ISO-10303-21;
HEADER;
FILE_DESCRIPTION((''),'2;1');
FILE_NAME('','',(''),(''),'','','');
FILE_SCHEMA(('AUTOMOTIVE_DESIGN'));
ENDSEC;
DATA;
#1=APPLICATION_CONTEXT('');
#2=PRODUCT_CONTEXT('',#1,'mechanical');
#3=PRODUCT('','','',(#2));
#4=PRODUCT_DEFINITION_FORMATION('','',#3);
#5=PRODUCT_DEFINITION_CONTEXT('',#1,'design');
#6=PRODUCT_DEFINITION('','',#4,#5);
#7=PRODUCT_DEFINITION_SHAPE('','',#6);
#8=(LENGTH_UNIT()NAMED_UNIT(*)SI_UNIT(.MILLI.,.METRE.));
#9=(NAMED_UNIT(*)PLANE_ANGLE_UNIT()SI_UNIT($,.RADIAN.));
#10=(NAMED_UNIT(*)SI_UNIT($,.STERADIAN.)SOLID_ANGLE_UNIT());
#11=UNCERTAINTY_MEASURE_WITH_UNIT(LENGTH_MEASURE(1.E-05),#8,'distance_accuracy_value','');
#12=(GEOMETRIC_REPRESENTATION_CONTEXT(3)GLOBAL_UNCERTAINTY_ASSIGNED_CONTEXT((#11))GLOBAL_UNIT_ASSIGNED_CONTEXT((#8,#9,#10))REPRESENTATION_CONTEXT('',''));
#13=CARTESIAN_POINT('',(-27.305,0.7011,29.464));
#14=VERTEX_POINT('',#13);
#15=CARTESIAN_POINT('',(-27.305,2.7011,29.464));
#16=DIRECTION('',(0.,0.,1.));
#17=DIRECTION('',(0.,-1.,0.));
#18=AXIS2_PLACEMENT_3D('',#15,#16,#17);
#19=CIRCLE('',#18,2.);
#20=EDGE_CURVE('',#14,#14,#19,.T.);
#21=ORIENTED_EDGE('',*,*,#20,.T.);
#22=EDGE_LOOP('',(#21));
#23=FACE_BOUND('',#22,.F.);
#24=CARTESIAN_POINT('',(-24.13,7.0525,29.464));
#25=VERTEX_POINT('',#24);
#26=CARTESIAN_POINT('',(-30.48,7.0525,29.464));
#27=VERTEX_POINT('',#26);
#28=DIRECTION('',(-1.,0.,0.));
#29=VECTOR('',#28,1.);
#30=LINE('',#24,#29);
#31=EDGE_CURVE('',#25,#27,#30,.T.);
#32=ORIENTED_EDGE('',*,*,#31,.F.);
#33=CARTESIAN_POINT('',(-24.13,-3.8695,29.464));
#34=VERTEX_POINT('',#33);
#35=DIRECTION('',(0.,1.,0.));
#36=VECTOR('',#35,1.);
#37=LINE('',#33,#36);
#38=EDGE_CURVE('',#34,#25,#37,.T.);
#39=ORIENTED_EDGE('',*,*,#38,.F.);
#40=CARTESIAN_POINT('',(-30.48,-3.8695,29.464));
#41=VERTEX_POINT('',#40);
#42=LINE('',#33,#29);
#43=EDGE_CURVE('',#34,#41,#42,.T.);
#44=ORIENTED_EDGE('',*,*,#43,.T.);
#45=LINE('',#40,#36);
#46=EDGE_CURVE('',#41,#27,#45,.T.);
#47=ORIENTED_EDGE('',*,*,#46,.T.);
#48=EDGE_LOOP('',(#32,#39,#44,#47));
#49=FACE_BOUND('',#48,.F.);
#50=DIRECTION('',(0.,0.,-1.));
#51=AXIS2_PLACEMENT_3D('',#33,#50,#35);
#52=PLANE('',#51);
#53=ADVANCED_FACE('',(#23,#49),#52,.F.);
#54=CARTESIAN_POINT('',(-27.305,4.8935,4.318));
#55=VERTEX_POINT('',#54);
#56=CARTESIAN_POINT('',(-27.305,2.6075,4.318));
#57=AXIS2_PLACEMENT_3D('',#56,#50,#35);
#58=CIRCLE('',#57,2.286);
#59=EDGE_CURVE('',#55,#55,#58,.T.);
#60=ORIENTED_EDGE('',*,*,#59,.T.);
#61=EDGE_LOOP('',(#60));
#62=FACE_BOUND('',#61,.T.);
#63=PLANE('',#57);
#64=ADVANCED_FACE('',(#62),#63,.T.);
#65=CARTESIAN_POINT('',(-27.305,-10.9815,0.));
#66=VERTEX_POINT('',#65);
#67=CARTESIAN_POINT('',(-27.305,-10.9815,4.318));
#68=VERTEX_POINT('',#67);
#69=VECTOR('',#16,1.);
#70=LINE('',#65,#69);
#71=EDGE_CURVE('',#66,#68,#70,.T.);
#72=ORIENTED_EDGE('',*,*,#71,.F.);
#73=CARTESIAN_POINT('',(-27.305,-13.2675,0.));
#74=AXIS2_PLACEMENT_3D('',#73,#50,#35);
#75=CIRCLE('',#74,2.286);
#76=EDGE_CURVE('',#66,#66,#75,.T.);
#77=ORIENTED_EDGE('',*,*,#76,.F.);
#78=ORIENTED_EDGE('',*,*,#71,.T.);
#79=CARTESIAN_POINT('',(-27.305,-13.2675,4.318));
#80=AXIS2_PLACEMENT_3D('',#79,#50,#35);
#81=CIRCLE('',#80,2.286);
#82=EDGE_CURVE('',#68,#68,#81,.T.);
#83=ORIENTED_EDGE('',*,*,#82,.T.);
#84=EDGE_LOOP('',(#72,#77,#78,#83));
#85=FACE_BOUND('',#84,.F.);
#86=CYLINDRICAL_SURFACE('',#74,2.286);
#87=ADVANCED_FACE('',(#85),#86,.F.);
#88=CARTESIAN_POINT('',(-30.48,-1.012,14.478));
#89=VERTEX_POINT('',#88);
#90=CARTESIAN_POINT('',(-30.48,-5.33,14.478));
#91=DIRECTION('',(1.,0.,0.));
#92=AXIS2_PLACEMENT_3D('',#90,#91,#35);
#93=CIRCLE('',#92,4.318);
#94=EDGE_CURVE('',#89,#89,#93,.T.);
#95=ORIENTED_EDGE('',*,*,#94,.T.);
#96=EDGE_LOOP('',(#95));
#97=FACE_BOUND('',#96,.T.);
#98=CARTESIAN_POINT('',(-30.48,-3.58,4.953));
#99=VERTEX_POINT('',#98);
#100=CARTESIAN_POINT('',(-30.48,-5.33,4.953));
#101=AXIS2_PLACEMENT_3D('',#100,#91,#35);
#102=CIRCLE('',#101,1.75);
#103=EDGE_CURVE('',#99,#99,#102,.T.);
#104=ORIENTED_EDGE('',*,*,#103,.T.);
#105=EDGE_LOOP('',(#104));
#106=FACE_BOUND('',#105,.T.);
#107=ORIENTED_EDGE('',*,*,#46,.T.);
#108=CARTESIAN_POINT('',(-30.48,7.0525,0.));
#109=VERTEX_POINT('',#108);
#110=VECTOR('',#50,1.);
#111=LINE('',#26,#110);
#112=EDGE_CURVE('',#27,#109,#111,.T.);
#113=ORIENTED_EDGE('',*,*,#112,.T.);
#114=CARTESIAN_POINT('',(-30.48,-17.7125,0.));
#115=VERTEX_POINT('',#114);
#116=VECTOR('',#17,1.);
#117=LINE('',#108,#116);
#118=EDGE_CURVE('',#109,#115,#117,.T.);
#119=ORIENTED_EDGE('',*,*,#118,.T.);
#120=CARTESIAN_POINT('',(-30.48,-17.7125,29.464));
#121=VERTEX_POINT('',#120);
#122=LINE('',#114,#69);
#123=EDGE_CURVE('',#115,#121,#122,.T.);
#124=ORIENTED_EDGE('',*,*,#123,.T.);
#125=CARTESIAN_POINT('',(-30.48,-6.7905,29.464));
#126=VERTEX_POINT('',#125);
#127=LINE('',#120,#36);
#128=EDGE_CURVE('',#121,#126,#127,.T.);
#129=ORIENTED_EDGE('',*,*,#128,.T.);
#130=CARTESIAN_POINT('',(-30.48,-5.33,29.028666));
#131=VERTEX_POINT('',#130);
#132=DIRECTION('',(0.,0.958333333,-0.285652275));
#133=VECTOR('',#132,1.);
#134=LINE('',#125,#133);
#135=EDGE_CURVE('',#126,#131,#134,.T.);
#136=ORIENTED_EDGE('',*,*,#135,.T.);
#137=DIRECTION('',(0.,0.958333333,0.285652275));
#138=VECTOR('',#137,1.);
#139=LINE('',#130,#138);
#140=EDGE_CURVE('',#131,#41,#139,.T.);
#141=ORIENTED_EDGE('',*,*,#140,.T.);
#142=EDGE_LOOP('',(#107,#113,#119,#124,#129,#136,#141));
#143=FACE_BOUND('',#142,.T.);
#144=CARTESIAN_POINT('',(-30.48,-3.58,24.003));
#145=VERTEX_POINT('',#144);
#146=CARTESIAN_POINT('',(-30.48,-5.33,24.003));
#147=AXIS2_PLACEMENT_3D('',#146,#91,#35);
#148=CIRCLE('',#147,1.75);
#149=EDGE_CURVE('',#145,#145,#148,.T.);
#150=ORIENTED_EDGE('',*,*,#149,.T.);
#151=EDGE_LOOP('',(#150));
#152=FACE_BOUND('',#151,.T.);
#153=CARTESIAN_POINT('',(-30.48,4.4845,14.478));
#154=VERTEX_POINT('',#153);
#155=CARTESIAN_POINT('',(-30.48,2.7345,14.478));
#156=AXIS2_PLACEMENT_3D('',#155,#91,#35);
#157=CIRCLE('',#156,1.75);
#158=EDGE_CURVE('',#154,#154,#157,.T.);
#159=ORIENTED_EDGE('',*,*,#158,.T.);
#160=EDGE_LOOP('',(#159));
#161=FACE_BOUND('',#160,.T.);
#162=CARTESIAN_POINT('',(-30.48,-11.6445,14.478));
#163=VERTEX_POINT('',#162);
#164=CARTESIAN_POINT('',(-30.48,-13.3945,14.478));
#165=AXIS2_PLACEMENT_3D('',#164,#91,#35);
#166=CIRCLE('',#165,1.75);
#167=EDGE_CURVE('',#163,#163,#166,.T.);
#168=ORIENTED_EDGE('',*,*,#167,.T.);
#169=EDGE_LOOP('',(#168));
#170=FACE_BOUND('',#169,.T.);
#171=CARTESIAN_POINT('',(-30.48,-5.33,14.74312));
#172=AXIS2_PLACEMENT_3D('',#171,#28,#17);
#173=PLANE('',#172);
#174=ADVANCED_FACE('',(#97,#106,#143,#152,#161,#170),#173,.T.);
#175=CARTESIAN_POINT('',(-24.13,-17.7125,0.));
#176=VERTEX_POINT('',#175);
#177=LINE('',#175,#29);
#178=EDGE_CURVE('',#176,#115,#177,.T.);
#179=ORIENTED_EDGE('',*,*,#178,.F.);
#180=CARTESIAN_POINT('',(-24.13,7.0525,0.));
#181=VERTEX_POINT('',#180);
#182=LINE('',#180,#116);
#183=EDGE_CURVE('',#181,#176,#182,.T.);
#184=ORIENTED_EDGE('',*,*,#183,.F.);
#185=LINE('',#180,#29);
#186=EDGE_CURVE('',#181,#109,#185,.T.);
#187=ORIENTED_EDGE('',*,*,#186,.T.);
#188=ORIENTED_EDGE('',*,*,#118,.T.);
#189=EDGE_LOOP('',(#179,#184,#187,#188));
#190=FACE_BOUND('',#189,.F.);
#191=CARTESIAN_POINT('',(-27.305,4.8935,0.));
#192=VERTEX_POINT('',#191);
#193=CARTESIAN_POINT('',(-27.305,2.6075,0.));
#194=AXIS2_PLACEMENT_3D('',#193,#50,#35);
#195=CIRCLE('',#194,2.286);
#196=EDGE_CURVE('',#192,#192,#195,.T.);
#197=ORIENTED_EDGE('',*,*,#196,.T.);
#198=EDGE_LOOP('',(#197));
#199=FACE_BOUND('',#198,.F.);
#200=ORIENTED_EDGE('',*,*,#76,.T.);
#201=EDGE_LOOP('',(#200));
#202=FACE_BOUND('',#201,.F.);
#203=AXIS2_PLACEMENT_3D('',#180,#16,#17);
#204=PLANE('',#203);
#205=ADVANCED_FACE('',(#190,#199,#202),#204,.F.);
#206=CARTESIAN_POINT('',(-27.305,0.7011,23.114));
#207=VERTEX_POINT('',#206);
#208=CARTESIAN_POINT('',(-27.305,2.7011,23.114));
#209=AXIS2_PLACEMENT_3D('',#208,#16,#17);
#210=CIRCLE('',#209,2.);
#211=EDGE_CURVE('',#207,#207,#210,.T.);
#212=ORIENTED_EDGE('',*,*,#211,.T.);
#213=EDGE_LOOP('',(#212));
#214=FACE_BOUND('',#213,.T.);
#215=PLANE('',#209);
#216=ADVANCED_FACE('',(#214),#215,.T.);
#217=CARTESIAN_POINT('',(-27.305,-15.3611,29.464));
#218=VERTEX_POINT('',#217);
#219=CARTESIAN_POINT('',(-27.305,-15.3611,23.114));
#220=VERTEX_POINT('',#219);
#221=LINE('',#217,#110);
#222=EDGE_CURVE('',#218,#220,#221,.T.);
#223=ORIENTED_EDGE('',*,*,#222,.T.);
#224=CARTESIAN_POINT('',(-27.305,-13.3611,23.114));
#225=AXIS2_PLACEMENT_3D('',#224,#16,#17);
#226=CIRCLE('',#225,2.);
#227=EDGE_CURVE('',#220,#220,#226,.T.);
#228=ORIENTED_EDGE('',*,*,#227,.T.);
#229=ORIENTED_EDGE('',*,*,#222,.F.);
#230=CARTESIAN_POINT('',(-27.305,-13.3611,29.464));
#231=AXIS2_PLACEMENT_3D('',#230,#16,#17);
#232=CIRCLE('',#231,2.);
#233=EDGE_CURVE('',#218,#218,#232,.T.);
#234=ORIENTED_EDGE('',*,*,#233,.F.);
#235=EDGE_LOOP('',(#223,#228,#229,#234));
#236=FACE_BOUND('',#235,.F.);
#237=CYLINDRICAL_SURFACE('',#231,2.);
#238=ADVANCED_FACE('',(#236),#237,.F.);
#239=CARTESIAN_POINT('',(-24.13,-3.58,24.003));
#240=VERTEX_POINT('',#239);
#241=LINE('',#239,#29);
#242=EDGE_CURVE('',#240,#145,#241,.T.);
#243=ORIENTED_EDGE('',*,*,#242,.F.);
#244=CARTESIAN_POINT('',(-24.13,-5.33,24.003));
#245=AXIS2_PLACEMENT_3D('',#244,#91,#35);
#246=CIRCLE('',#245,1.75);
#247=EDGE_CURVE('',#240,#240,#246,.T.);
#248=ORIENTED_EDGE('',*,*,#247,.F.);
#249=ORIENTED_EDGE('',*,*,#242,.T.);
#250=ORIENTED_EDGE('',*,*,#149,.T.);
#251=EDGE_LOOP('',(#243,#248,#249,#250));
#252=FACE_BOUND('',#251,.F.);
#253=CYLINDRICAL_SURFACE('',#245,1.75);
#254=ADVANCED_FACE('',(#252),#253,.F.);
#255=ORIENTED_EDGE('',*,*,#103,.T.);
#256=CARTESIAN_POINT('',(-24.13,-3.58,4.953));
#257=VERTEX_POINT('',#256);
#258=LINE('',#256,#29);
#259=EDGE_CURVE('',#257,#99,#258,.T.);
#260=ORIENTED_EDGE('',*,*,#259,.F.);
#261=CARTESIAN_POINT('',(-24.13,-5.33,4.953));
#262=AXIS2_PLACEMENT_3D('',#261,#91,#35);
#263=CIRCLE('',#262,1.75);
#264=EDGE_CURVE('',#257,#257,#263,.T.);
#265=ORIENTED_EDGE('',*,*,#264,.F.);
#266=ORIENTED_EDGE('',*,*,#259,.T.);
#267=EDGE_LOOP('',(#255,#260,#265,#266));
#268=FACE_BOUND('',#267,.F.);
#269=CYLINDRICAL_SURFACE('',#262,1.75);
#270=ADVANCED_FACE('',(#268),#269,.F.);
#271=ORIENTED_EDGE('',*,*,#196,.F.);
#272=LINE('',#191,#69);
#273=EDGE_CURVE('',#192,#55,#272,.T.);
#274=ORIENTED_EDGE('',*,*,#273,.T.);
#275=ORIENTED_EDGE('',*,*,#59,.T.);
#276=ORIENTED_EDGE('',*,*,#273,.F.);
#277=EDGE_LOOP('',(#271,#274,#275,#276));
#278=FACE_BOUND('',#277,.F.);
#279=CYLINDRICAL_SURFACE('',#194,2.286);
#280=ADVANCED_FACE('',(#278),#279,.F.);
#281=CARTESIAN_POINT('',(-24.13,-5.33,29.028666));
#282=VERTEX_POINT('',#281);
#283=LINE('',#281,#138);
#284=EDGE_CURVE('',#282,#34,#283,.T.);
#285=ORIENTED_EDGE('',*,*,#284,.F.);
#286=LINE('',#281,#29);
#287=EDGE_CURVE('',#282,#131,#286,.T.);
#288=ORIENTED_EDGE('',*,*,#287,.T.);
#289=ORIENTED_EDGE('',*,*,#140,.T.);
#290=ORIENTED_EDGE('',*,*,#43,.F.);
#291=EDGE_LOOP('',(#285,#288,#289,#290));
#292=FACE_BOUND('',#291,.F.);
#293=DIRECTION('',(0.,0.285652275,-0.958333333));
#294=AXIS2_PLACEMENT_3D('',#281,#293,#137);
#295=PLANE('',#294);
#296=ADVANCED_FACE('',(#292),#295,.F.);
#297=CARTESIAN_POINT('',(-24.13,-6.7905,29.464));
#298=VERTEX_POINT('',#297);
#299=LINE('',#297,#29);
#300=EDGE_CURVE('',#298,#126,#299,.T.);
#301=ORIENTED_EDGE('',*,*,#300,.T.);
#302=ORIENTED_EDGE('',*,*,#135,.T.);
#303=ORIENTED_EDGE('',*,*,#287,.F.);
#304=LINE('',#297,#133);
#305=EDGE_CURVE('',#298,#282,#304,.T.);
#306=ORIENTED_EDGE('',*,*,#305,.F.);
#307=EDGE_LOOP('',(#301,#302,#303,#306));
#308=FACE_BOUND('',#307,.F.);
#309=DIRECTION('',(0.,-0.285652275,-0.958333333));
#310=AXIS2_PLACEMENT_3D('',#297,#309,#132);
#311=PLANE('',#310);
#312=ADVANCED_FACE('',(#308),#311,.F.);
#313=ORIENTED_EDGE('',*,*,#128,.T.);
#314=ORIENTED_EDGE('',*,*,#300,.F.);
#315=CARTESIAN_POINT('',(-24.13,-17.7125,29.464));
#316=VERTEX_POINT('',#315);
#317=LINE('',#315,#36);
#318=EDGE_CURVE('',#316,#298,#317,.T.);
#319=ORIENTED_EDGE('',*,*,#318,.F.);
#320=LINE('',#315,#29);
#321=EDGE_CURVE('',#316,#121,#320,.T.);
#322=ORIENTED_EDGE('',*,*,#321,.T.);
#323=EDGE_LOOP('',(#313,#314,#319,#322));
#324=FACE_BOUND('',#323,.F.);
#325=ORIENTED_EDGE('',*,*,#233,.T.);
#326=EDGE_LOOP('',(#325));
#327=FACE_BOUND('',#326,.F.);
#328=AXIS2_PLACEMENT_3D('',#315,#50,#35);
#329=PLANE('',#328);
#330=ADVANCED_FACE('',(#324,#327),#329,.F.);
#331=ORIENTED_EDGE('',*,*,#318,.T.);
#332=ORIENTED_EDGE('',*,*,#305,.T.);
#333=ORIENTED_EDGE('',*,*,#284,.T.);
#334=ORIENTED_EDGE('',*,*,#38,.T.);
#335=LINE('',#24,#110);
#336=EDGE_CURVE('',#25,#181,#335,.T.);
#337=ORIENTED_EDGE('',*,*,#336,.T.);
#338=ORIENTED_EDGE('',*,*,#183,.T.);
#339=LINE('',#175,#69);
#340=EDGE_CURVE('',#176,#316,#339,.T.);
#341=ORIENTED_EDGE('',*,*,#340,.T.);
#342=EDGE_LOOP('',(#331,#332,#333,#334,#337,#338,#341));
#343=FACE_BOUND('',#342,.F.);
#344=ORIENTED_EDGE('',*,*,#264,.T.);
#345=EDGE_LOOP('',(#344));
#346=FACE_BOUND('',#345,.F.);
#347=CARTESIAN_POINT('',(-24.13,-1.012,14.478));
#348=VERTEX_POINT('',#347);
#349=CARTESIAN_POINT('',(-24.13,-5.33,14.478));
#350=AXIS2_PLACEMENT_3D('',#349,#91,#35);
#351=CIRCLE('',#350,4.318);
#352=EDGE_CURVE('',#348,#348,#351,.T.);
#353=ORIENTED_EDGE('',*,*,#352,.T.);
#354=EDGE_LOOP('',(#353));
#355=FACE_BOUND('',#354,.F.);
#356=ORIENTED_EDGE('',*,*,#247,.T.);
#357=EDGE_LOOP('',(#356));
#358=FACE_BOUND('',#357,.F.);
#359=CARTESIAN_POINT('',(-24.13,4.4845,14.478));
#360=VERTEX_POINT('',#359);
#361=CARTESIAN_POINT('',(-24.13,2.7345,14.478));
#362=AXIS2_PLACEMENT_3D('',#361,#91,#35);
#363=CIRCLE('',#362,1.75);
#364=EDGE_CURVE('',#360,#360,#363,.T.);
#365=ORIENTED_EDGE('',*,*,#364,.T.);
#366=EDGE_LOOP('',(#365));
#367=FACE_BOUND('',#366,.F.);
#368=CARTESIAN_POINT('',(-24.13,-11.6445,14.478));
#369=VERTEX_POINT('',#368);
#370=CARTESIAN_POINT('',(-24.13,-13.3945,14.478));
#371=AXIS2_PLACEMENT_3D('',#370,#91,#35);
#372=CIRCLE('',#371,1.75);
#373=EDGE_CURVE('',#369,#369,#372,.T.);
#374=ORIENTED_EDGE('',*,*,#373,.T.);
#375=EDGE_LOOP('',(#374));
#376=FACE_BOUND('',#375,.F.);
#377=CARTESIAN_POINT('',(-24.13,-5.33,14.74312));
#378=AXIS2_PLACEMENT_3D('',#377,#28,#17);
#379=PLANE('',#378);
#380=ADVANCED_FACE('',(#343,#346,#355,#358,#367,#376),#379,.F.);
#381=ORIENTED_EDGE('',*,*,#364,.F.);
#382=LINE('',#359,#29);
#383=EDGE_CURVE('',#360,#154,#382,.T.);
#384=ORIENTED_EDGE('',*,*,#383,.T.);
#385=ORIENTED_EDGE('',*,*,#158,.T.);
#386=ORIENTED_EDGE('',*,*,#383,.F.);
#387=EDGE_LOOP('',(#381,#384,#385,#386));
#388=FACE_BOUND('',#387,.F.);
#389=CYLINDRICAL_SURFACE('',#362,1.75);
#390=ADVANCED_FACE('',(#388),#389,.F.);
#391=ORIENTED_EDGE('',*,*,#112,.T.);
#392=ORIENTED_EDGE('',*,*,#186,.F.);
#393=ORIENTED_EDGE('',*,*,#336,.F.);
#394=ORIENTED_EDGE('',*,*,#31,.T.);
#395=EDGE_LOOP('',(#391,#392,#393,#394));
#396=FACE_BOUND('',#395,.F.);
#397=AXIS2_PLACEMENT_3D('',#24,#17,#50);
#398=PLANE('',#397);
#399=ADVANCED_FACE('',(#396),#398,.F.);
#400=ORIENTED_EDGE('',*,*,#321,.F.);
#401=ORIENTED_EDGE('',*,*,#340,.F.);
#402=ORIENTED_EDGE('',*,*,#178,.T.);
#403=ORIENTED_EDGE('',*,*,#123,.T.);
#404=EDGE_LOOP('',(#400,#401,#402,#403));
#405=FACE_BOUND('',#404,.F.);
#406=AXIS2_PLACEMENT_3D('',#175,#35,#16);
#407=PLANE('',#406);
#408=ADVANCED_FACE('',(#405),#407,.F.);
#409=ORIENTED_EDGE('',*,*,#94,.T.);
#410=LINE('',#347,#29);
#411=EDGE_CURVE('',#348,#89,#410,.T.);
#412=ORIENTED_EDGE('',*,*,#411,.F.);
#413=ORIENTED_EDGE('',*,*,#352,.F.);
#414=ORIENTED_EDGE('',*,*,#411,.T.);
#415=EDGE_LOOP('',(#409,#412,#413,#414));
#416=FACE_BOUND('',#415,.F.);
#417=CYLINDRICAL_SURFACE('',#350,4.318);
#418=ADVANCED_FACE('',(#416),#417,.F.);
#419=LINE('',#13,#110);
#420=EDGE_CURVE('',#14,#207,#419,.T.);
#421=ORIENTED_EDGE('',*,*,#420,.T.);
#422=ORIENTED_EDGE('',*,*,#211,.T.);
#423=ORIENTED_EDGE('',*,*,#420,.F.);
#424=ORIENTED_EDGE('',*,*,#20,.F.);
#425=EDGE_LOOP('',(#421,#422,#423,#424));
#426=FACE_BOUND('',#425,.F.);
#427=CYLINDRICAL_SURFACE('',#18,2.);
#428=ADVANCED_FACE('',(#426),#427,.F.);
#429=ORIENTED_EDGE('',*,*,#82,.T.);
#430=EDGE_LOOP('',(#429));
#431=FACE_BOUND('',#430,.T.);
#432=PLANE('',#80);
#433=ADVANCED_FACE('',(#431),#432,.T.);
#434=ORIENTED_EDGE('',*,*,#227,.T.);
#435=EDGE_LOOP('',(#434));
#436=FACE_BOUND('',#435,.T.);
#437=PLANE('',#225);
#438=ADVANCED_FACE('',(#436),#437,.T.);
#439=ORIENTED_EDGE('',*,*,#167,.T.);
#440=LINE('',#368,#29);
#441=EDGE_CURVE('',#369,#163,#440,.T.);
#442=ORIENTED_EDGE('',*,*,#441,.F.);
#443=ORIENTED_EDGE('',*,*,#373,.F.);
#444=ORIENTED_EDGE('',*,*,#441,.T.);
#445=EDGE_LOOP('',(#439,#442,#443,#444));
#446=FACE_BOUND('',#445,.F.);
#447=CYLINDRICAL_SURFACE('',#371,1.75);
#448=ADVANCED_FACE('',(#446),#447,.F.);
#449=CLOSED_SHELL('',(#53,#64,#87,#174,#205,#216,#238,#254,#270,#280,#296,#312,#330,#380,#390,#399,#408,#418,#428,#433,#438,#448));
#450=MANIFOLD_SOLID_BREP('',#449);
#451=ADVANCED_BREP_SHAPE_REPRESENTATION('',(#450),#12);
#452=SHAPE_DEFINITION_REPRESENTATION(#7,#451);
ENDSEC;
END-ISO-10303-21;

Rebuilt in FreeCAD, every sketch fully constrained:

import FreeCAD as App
import Part
import Sketcher
Q = App.Units.Quantity

doc = App.newDocument("Part")
body = doc.addObject("PartDesign::Body", "Body")

# Sketch on YZ plane
sketch1 = body.newObject("Sketcher::SketchObject", "Sketch")
sketch1.AttachmentSupport = (doc.getObject("YZ_Plane"), [""])
sketch1.MapMode = "FlatFace"
sketch1.addGeometry([
    Part.LineSegment(App.Vector(-12.3825, 0, 0), App.Vector(12.3825, 0, 0)),  # 0
    Part.LineSegment(App.Vector(12.3825, 0, 0), App.Vector(12.3825, 29.464, 0)),  # 1
    Part.LineSegment(App.Vector(12.3825, 29.464, 0), App.Vector(1.4605, 29.464, 0)),  # 2
    Part.LineSegment(App.Vector(1.4605, 29.464, 0), App.Vector(0, 29.028666, 0)),  # 3
    Part.LineSegment(App.Vector(0, 29.028666, 0), App.Vector(-1.4605, 29.464, 0)),  # 4
    Part.LineSegment(App.Vector(-1.4605, 29.464, 0), App.Vector(-12.3825, 29.464, 0)),  # 5
    Part.LineSegment(App.Vector(-12.3825, 29.464, 0), App.Vector(-12.3825, 0, 0)),  # 6
    Part.Circle(App.Vector(0, 4.953, 0), App.Vector(0, 0, 1), 1.75),  # 7
    Part.Circle(App.Vector(8.0645, 14.478, 0), App.Vector(0, 0, 1), 1.75),  # 8
    Part.Circle(App.Vector(0, 14.478, 0), App.Vector(0, 0, 1), 4.318),  # 9
    Part.Circle(App.Vector(-8.0645, 14.478, 0), App.Vector(0, 0, 1), 1.75),  # 10
    Part.Circle(App.Vector(0, 24.003, 0), App.Vector(0, 0, 1), 1.75),  # 11
], False)
sketch1.addConstraint([
    Sketcher.Constraint("Coincident", 0, 2, 1, 1),
    Sketcher.Constraint("Coincident", 1, 2, 2, 1),
    Sketcher.Constraint("Coincident", 2, 2, 3, 1),
    Sketcher.Constraint("Coincident", 3, 2, 4, 1),
    Sketcher.Constraint("Coincident", 4, 2, 5, 1),
    Sketcher.Constraint("Coincident", 5, 2, 6, 1),
    Sketcher.Constraint("Coincident", 6, 2, 0, 1),
    Sketcher.Constraint("Horizontal", 0),
    Sketcher.Constraint("Vertical", 1),
    Sketcher.Constraint("Horizontal", 2),
    Sketcher.Constraint("Horizontal", 5),
    Sketcher.Constraint("Vertical", 6),
    Sketcher.Constraint("Equal", 7, 8),
    Sketcher.Constraint("Equal", 8, 10),
    Sketcher.Constraint("Equal", 10, 11),
    Sketcher.Constraint("Symmetric", 0, 2, 6, 2, -1, 1),
    Sketcher.Constraint("Symmetric", 8, 3, 10, 3, -2),
    Sketcher.Constraint("Symmetric", 2, 2, 4, 2, -2),
    Sketcher.Constraint("PointOnObject", 7, 3, -2),
    Sketcher.Constraint("PointOnObject", 9, 3, -2),
    Sketcher.Constraint("PointOnObject", 11, 3, -2),
    Sketcher.Constraint("PointOnObject", 3, 2, -2),
    Sketcher.Constraint("Horizontal", 8, 3, 9, 3),
    Sketcher.Constraint("Diameter", 9, Q("0.34 in")),
    Sketcher.Constraint("DistanceX", 2, 2, 2, 1, Q("0.43 in")),
    Sketcher.Constraint("DistanceY", 1, 1, 1, 2, Q("1.16 in")),
    Sketcher.Constraint("Distance", 3, Q("0.06 in")),
    Sketcher.Constraint("Diameter", 7, 3.5),
    Sketcher.Constraint("DistanceX", 0, 1, 0, 2, Q("0.975 in")),
    Sketcher.Constraint("DistanceY", -1, 1, 8, 3, Q("0.57 in")),
    Sketcher.Constraint("DistanceY", 7, 3, 11, 3, Q("0.75 in")),
    Sketcher.Constraint("DistanceX", 8, 3, 0, 2, Q("0.17 in")),
    Sketcher.Constraint("DistanceY", -1, 1, 7, 3, Q("0.195 in")),
])
pad1 = body.newObject("PartDesign::Pad", "Pad")
pad1.Profile = sketch1
pad1.Length = Q("0.25 in")
pad1.Reversed = True

# Sketch on XY plane
sketch2 = body.newObject("Sketcher::SketchObject", "Sketch001")
sketch2.AttachmentSupport = (doc.getObject("XY_Plane"), [""])
sketch2.MapMode = "FlatFace"
sketch2.AttachmentOffset = App.Placement(App.Vector(0, 0, 1.16 * 25.4), App.Rotation())
sketch2.addGeometry([
    Part.Circle(App.Vector(-3.175, 8.0311, 0), App.Vector(0, 0, 1), 2),
    Part.Circle(App.Vector(-3.175, -8.0311, 0), App.Vector(0, 0, 1), 2),
], False)
sketch2.addConstraint([
    Sketcher.Constraint("Equal", 0, 1),
    Sketcher.Constraint("Symmetric", 0, 3, 1, 3, -1),
    Sketcher.Constraint("Diameter", 0, 4.0),
    Sketcher.Constraint("DistanceX", 0, 3, -1, 1, Q("0.125 in")),
    Sketcher.Constraint("DistanceY", -1, 1, 0, 3, 8.0311),
])
pocket1 = body.newObject("PartDesign::Pocket", "Pocket")
pocket1.Profile = sketch2
pocket1.Length = Q("0.25 in")

# Sketch on XY plane
sketch3 = body.newObject("Sketcher::SketchObject", "Sketch002")
sketch3.AttachmentSupport = (doc.getObject("XY_Plane"), [""])
sketch3.MapMode = "FlatFace"
sketch3.addGeometry([
    Part.Circle(App.Vector(-3.175, -7.9375, 0), App.Vector(0, 0, 1), 2.286),
    Part.Circle(App.Vector(-3.175, 7.9375, 0), App.Vector(0, 0, 1), 2.286),
], False)
sketch3.addConstraint([
    Sketcher.Constraint("Equal", 0, 1),
    Sketcher.Constraint("Symmetric", 0, 3, 1, 3, -1),
    Sketcher.Constraint("Diameter", 0, Q("0.18 in")),
    Sketcher.Constraint("DistanceX", 0, 3, -1, 1, Q("0.125 in")),
    Sketcher.Constraint("DistanceY", 0, 3, -1, 1, Q("0.3125 in")),
])
pocket2 = body.newObject("PartDesign::Pocket", "Pocket001")
pocket2.Profile = sketch3
pocket2.Length = Q("0.17 in")
pocket2.Reversed = True
body2 = doc.addObject("PartDesign::Body", "Body001")
doc.recompute()

body.Placement = App.Placement(App.Vector(-24.13, -5.33, 0), App.Rotation(App.Vector(0, 0, 1), 0))
boolean = body2.newObject("PartDesign::Boolean", "Boolean")
boolean.Type = "Fuse"
boolean.addObjects([body])

doc.recompute()
